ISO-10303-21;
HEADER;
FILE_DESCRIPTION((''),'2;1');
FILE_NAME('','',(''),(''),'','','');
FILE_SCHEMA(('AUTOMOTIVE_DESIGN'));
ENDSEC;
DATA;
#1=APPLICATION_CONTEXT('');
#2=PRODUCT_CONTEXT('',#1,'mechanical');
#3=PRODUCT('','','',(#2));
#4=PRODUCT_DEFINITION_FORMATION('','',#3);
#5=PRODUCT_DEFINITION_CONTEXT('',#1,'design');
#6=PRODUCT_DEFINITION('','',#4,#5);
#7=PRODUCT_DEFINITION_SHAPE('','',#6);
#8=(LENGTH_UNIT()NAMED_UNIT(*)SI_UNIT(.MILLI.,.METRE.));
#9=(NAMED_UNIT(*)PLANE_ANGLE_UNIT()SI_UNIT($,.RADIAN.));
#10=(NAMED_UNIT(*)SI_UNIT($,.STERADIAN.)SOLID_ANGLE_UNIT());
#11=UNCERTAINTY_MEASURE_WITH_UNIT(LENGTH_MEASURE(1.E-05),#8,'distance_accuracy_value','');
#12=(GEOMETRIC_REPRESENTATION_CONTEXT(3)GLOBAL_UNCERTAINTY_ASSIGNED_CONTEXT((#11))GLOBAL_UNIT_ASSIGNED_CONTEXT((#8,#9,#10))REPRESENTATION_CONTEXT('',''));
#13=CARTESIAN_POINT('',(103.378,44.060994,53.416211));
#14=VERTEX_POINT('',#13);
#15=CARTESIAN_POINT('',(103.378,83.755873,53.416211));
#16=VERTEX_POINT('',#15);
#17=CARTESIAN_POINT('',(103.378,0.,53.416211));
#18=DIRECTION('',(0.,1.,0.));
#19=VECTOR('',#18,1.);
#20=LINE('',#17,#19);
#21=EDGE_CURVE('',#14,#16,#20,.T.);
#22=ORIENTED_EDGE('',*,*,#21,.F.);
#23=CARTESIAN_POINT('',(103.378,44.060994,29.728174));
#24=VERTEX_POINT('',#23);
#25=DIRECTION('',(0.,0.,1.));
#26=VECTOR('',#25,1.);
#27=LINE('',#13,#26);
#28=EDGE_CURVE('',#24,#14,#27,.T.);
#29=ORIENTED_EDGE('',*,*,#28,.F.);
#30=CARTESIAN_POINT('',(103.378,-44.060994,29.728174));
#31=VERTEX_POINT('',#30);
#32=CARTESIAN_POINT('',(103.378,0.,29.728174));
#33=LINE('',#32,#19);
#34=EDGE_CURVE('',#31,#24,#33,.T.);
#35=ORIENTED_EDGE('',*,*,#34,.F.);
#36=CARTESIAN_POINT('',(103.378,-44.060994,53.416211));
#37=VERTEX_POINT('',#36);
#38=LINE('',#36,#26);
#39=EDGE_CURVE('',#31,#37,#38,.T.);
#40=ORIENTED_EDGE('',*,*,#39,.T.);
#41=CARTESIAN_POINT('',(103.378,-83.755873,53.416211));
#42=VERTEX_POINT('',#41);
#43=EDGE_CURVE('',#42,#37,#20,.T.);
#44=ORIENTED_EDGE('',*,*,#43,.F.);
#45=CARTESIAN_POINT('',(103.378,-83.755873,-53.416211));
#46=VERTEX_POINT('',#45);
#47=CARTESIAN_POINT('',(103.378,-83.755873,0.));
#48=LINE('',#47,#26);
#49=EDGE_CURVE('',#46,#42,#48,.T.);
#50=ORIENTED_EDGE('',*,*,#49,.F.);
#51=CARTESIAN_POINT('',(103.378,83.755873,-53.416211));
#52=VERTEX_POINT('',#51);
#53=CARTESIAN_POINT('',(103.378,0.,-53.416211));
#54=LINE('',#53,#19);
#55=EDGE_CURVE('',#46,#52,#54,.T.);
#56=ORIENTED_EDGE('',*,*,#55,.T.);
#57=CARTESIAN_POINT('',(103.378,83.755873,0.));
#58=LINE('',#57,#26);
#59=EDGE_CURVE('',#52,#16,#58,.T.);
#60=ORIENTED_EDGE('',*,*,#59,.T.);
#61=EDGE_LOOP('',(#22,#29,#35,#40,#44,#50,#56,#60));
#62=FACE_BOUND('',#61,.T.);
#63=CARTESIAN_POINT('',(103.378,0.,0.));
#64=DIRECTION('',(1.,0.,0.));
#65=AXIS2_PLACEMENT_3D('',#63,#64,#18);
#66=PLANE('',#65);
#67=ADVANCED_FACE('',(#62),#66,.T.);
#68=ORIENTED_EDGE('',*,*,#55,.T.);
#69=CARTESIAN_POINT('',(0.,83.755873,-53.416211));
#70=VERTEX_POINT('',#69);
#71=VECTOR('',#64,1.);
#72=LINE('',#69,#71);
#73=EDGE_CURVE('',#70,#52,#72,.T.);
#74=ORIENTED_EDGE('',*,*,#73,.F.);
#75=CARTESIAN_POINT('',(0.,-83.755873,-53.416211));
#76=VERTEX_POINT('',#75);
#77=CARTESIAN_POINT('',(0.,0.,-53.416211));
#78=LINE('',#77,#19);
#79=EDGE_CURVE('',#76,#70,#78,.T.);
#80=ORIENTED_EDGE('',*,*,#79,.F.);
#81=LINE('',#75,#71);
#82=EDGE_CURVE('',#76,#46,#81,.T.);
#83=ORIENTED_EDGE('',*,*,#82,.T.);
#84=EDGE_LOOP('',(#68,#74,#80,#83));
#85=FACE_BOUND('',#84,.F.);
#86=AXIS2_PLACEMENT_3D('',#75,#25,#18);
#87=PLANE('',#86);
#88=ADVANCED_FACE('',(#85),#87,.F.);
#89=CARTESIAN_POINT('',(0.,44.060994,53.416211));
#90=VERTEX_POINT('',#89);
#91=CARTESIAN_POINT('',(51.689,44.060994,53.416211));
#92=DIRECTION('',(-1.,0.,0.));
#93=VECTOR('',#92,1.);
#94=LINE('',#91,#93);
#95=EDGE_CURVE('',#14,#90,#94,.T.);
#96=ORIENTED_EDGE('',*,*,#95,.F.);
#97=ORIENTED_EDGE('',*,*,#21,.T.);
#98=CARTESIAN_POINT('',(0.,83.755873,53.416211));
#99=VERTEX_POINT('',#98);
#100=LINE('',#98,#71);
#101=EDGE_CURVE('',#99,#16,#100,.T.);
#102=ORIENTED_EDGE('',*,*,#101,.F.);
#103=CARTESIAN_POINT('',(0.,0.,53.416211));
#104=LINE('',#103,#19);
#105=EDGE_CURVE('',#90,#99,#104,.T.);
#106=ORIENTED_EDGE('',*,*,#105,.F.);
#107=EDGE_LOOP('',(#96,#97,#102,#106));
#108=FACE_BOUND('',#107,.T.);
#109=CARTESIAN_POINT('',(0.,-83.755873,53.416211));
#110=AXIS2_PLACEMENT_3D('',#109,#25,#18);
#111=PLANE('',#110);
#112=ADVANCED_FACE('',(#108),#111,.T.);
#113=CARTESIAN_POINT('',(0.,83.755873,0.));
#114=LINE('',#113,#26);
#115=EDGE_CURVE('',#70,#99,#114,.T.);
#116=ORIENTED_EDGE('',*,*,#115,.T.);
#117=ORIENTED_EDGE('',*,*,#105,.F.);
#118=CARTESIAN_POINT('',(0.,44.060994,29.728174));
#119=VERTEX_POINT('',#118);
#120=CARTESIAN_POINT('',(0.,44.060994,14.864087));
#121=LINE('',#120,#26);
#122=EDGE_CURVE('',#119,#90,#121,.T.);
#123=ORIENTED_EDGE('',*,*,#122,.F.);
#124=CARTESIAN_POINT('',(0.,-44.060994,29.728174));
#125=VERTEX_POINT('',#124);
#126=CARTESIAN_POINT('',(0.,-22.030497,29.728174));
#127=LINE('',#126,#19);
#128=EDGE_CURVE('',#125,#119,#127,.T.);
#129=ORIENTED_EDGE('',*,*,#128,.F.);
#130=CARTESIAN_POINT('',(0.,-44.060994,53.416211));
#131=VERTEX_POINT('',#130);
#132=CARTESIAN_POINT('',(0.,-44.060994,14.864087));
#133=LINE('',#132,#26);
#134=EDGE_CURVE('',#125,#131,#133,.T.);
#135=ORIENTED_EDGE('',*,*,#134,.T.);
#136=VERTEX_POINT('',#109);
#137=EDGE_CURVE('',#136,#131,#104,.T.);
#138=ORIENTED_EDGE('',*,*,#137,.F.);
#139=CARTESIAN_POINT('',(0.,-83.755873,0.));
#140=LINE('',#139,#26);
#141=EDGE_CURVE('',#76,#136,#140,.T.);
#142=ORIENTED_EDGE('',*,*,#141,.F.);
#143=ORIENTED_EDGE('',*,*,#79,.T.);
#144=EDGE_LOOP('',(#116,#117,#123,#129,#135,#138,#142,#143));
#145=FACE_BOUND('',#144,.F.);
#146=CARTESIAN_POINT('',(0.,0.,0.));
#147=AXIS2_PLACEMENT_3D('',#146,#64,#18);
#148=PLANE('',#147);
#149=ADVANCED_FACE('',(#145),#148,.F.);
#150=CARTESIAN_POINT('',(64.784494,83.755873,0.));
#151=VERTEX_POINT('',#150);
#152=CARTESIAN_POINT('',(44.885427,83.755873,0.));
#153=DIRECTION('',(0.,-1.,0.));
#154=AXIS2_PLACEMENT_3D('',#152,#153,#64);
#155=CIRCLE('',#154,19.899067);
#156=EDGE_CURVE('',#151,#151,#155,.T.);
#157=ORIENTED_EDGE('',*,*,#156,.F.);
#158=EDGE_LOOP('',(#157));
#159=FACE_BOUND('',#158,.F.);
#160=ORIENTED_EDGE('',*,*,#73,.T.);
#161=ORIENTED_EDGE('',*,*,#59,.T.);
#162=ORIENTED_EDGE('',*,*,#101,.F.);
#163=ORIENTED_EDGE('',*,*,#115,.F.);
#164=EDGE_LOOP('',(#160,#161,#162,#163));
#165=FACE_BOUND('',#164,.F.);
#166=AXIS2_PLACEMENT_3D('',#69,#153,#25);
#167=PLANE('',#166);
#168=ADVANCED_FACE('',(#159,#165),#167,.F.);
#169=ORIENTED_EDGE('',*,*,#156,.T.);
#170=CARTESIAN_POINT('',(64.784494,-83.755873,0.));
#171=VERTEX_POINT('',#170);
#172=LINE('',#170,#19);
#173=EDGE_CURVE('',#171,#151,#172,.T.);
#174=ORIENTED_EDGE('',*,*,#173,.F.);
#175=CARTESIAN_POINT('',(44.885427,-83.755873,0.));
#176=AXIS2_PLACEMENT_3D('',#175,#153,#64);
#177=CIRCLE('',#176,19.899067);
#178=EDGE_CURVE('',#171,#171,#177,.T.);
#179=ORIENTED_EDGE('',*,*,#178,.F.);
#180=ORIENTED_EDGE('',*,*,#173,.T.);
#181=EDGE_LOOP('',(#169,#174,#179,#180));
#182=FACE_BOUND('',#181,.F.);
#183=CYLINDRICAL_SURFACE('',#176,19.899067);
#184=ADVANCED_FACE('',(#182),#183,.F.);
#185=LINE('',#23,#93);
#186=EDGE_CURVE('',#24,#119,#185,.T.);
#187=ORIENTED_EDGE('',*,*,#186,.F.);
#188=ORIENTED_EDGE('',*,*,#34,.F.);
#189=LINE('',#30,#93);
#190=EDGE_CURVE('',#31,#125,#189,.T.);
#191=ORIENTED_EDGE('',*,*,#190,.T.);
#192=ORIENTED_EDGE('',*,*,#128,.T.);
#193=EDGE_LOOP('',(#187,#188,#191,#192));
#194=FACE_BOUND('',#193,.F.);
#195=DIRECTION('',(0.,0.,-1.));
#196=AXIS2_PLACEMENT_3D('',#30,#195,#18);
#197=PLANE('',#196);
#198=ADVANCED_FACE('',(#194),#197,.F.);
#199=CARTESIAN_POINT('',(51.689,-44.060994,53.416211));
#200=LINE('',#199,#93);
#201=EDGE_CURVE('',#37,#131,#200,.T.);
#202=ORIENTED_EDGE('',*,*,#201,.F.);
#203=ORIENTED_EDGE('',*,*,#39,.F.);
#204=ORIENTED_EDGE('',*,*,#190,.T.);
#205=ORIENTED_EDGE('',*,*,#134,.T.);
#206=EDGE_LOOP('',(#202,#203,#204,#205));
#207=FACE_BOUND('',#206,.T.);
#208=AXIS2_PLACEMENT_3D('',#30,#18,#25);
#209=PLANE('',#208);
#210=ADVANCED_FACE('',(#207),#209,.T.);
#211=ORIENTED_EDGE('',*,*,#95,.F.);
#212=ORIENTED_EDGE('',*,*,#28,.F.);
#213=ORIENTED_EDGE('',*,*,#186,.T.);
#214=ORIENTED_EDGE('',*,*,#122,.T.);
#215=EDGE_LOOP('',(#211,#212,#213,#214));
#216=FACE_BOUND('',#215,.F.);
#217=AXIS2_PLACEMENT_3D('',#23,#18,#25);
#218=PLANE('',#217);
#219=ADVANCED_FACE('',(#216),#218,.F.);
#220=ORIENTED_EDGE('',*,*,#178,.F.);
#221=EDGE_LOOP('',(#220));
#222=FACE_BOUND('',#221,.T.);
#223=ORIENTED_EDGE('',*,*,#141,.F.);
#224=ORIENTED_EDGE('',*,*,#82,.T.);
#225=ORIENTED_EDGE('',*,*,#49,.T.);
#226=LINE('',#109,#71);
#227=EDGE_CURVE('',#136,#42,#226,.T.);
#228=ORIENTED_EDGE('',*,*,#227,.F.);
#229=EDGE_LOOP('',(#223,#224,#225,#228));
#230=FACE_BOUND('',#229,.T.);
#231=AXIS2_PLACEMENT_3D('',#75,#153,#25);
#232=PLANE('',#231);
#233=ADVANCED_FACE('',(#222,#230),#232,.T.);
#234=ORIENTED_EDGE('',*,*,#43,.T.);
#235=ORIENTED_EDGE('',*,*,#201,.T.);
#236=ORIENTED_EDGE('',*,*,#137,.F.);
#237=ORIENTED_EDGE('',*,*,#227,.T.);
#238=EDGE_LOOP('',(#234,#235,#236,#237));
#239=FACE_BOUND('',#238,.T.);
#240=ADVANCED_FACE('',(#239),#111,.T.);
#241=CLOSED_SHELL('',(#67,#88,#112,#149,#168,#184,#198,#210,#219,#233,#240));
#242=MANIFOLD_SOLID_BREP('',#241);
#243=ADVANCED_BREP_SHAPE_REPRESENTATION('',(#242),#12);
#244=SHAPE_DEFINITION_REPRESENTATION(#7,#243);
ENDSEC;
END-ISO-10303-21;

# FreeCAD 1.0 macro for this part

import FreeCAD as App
import Part
import Sketcher
Q = App.Units.Quantity


def add_polygon(sketch, points):
    """Adds a closed chain of lines whose ends are joined by coincident constraints."""
    first, n = sketch.GeometryCount, len(points)
    for a, b in zip(points, points[1:] + points[:1]):
        sketch.addGeometry(Part.LineSegment(App.Vector(*a, 0), App.Vector(*b, 0)), False)
    for i in range(n):
        sketch.addConstraint(Sketcher.Constraint("Coincident", first + i, 2, first + (i + 1) % n, 1))

doc = App.newDocument("Part")
params = doc.addObject("Spreadsheet::Sheet", "Params")
for row, (alias, value) in enumerate([
    ("pad1_length", "4.07 in"),
    ("pocket1_length", "9.03 in"),
    ("pocket2_length", "5.24 in"),
], start=1):
    params.set(f"A{row}", alias)
    params.set(f"B{row}", "=" + value)
    params.setAlias(f"B{row}", alias)

body = doc.addObject("PartDesign::Body", "Body")

sketch1 = body.newObject("Sketcher::SketchObject", "Sketch")
sketch1.AttachmentSupport = (doc.getObject("YZ_Plane"), [""])
sketch1.MapMode = "FlatFace"
add_polygon(sketch1, [(-84, 53), (-84, -53), (84, -53), (84, 53)])
sketch1.addConstraint([
    Sketcher.Constraint("Vertical", 0),
    Sketcher.Constraint("Horizontal", 1),
    Sketcher.Constraint("Vertical", 2),
    Sketcher.Constraint("Horizontal", 3),
    Sketcher.Constraint("Symmetric", 0, 2, 2, 2, -1, 1),
    Sketcher.Constraint("DistanceY", 0, 2, 0, 1, Q("106.832422 mm")),
    Sketcher.Constraint("DistanceX", 1, 1, 1, 2, Q("167.511746 mm")),
])
pad1 = body.newObject("PartDesign::Pad", "Pad")
pad1.Profile = sketch1
pad1.setExpression("Length", "Params.pad1_length")

sketch2 = body.newObject("Sketcher::SketchObject", "Sketch001")
sketch2.AttachmentSupport = (doc.getObject("XZ_Plane"), [""])
sketch2.MapMode = "FlatFace"
sketch2.AttachmentOffset = App.Placement(App.Vector(0, 0, 83.755873), App.Rotation())
sketch2.addGeometry(Part.Circle(App.Vector(45, 0, 0), App.Vector(0, 0, 1), 20), False)
sketch2.addConstraint([
    Sketcher.Constraint("PointOnObject", 0, 3, -1),
    Sketcher.Constraint("Diameter", 0, Q("39.798134 mm")),
    Sketcher.Constraint("DistanceX", -1, 1, 0, 3, Q("44.885427 mm")),
])
pocket1 = body.newObject("PartDesign::Pocket", "Pocket")
pocket1.Profile = sketch2
pocket1.setExpression("Length", "Params.pocket1_length")

sketch3 = body.newObject("Sketcher::SketchObject", "Sketch002")
sketch3.AttachmentSupport = (doc.getObject("YZ_Plane"), [""])
sketch3.MapMode = "FlatFace"
sketch3.AttachmentOffset = App.Placement(App.Vector(0, 0, 4.07 * 25.4), App.Rotation())
add_polygon(sketch3, [(-44, 77), (-44, 30), (44, 30), (44, 77)])
sketch3.addConstraint([
    Sketcher.Constraint("Vertical", 0),
    Sketcher.Constraint("Horizontal", 1),
    Sketcher.Constraint("Vertical", 2),
    Sketcher.Constraint("Horizontal", 3),
    Sketcher.Constraint("DistanceX", 1, 1, 1, 2, Q("88.121988 mm")),
    Sketcher.Constraint("DistanceY", 0, 2, 0, 1, Q("47.376074 mm")),
    Sketcher.Constraint("DistanceY", -1, 1, 2, 2, Q("77.104248 mm")),
    Sketcher.Constraint("DistanceX", 0, 2, -1, 1, Q("44.060994 mm")),
])
pocket2 = body.newObject("PartDesign::Pocket", "Pocket001")
pocket2.Profile = sketch3
pocket2.setExpression("Length", "Params.pocket2_length")

doc.recompute()
